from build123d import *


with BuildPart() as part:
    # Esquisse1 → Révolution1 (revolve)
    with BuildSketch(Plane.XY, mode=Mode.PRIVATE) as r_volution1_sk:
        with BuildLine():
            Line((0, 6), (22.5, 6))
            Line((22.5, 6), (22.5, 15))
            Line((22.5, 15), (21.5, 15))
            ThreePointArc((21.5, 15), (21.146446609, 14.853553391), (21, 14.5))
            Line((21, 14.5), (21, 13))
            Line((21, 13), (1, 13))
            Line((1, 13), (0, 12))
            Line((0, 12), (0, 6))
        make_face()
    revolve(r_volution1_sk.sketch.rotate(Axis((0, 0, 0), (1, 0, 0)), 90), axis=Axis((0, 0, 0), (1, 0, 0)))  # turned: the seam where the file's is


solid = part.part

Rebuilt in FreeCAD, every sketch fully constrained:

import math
import FreeCAD as App
import Part
import Sketcher
from FreeCAD import Vector
Q = App.Units.Quantity

doc = App.newDocument("Part")
body = doc.addObject("PartDesign::Body", "Body")

sketch1 = body.newObject("Sketcher::SketchObject", "Sketch")
sketch1.AttachmentSupport = (doc.getObject("XY_Plane"), [""])
sketch1.MapMode = "FlatFace"
sketch1.addGeometry([
    Part.LineSegment(Vector(0, 6, 0), Vector(22.5, 6, 0)),
    Part.LineSegment(Vector(22.5, 6, 0), Vector(22.5, 15, 0)),
    Part.LineSegment(Vector(22.5, 15, 0), Vector(21.5, 15, 0)),
    Part.ArcOfCircle(Part.Circle(Vector(21.5, 14.5, 0), Vector(0, 0, 1), 0.5), math.radians(90), math.radians(180)),
    Part.LineSegment(Vector(21, 14.5, 0), Vector(21, 13, 0)),
    Part.LineSegment(Vector(21, 13, 0), Vector(1, 13, 0)),
    Part.LineSegment(Vector(1, 13, 0), Vector(0, 12, 0)),
    Part.LineSegment(Vector(0, 12, 0), Vector(0, 6, 0)),
], False)
sketch1.addConstraint([
    Sketcher.Constraint("Coincident", 0, 2, 1, 1),
    Sketcher.Constraint("Coincident", 1, 2, 2, 1),
    Sketcher.Constraint("Tangent", 2, 2, 3, 1),
    Sketcher.Constraint("Tangent", 3, 2, 4, 1),
    Sketcher.Constraint("Coincident", 4, 2, 5, 1),
    Sketcher.Constraint("Coincident", 5, 2, 6, 1),
    Sketcher.Constraint("Coincident", 6, 2, 7, 1),
    Sketcher.Constraint("Coincident", 7, 2, 0, 1),
    Sketcher.Constraint("Horizontal", 0),
    Sketcher.Constraint("Vertical", 1),
    Sketcher.Constraint("Horizontal", 2),
    Sketcher.Constraint("Vertical", 4),
    Sketcher.Constraint("Horizontal", 5),
    Sketcher.Constraint("Vertical", 7),
    Sketcher.Constraint("PointOnObject", 6, 2, -2),
    Sketcher.Constraint("Radius", 3, Q("0.5 mm")),
    Sketcher.Constraint("DistanceX", 2, 2, 2, 1, Q("1 mm")),
    Sketcher.Constraint("DistanceX", 5, 2, 5, 1, Q("20 mm")),
    Sketcher.Constraint("DistanceY", 1, 1, 1, 2, Q("9 mm")),
    Sketcher.Constraint("DistanceY", 7, 2, 7, 1, Q("6 mm")),
    Sketcher.Constraint("Angle", 6, Q("-135 deg")),
    Sketcher.Constraint("DistanceX", 0, 1, 0, 2, Q("22.5 mm")),
    Sketcher.Constraint("DistanceY", -1, 1, 0, 2, Q("6 mm")),
])
revolution = body.newObject("PartDesign::Revolution", "Revolution")
revolution.Profile = sketch1
revolution.ReferenceAxis = (sketch1, ["H_Axis"])
revolution.Angle = 360

doc.recompute()
